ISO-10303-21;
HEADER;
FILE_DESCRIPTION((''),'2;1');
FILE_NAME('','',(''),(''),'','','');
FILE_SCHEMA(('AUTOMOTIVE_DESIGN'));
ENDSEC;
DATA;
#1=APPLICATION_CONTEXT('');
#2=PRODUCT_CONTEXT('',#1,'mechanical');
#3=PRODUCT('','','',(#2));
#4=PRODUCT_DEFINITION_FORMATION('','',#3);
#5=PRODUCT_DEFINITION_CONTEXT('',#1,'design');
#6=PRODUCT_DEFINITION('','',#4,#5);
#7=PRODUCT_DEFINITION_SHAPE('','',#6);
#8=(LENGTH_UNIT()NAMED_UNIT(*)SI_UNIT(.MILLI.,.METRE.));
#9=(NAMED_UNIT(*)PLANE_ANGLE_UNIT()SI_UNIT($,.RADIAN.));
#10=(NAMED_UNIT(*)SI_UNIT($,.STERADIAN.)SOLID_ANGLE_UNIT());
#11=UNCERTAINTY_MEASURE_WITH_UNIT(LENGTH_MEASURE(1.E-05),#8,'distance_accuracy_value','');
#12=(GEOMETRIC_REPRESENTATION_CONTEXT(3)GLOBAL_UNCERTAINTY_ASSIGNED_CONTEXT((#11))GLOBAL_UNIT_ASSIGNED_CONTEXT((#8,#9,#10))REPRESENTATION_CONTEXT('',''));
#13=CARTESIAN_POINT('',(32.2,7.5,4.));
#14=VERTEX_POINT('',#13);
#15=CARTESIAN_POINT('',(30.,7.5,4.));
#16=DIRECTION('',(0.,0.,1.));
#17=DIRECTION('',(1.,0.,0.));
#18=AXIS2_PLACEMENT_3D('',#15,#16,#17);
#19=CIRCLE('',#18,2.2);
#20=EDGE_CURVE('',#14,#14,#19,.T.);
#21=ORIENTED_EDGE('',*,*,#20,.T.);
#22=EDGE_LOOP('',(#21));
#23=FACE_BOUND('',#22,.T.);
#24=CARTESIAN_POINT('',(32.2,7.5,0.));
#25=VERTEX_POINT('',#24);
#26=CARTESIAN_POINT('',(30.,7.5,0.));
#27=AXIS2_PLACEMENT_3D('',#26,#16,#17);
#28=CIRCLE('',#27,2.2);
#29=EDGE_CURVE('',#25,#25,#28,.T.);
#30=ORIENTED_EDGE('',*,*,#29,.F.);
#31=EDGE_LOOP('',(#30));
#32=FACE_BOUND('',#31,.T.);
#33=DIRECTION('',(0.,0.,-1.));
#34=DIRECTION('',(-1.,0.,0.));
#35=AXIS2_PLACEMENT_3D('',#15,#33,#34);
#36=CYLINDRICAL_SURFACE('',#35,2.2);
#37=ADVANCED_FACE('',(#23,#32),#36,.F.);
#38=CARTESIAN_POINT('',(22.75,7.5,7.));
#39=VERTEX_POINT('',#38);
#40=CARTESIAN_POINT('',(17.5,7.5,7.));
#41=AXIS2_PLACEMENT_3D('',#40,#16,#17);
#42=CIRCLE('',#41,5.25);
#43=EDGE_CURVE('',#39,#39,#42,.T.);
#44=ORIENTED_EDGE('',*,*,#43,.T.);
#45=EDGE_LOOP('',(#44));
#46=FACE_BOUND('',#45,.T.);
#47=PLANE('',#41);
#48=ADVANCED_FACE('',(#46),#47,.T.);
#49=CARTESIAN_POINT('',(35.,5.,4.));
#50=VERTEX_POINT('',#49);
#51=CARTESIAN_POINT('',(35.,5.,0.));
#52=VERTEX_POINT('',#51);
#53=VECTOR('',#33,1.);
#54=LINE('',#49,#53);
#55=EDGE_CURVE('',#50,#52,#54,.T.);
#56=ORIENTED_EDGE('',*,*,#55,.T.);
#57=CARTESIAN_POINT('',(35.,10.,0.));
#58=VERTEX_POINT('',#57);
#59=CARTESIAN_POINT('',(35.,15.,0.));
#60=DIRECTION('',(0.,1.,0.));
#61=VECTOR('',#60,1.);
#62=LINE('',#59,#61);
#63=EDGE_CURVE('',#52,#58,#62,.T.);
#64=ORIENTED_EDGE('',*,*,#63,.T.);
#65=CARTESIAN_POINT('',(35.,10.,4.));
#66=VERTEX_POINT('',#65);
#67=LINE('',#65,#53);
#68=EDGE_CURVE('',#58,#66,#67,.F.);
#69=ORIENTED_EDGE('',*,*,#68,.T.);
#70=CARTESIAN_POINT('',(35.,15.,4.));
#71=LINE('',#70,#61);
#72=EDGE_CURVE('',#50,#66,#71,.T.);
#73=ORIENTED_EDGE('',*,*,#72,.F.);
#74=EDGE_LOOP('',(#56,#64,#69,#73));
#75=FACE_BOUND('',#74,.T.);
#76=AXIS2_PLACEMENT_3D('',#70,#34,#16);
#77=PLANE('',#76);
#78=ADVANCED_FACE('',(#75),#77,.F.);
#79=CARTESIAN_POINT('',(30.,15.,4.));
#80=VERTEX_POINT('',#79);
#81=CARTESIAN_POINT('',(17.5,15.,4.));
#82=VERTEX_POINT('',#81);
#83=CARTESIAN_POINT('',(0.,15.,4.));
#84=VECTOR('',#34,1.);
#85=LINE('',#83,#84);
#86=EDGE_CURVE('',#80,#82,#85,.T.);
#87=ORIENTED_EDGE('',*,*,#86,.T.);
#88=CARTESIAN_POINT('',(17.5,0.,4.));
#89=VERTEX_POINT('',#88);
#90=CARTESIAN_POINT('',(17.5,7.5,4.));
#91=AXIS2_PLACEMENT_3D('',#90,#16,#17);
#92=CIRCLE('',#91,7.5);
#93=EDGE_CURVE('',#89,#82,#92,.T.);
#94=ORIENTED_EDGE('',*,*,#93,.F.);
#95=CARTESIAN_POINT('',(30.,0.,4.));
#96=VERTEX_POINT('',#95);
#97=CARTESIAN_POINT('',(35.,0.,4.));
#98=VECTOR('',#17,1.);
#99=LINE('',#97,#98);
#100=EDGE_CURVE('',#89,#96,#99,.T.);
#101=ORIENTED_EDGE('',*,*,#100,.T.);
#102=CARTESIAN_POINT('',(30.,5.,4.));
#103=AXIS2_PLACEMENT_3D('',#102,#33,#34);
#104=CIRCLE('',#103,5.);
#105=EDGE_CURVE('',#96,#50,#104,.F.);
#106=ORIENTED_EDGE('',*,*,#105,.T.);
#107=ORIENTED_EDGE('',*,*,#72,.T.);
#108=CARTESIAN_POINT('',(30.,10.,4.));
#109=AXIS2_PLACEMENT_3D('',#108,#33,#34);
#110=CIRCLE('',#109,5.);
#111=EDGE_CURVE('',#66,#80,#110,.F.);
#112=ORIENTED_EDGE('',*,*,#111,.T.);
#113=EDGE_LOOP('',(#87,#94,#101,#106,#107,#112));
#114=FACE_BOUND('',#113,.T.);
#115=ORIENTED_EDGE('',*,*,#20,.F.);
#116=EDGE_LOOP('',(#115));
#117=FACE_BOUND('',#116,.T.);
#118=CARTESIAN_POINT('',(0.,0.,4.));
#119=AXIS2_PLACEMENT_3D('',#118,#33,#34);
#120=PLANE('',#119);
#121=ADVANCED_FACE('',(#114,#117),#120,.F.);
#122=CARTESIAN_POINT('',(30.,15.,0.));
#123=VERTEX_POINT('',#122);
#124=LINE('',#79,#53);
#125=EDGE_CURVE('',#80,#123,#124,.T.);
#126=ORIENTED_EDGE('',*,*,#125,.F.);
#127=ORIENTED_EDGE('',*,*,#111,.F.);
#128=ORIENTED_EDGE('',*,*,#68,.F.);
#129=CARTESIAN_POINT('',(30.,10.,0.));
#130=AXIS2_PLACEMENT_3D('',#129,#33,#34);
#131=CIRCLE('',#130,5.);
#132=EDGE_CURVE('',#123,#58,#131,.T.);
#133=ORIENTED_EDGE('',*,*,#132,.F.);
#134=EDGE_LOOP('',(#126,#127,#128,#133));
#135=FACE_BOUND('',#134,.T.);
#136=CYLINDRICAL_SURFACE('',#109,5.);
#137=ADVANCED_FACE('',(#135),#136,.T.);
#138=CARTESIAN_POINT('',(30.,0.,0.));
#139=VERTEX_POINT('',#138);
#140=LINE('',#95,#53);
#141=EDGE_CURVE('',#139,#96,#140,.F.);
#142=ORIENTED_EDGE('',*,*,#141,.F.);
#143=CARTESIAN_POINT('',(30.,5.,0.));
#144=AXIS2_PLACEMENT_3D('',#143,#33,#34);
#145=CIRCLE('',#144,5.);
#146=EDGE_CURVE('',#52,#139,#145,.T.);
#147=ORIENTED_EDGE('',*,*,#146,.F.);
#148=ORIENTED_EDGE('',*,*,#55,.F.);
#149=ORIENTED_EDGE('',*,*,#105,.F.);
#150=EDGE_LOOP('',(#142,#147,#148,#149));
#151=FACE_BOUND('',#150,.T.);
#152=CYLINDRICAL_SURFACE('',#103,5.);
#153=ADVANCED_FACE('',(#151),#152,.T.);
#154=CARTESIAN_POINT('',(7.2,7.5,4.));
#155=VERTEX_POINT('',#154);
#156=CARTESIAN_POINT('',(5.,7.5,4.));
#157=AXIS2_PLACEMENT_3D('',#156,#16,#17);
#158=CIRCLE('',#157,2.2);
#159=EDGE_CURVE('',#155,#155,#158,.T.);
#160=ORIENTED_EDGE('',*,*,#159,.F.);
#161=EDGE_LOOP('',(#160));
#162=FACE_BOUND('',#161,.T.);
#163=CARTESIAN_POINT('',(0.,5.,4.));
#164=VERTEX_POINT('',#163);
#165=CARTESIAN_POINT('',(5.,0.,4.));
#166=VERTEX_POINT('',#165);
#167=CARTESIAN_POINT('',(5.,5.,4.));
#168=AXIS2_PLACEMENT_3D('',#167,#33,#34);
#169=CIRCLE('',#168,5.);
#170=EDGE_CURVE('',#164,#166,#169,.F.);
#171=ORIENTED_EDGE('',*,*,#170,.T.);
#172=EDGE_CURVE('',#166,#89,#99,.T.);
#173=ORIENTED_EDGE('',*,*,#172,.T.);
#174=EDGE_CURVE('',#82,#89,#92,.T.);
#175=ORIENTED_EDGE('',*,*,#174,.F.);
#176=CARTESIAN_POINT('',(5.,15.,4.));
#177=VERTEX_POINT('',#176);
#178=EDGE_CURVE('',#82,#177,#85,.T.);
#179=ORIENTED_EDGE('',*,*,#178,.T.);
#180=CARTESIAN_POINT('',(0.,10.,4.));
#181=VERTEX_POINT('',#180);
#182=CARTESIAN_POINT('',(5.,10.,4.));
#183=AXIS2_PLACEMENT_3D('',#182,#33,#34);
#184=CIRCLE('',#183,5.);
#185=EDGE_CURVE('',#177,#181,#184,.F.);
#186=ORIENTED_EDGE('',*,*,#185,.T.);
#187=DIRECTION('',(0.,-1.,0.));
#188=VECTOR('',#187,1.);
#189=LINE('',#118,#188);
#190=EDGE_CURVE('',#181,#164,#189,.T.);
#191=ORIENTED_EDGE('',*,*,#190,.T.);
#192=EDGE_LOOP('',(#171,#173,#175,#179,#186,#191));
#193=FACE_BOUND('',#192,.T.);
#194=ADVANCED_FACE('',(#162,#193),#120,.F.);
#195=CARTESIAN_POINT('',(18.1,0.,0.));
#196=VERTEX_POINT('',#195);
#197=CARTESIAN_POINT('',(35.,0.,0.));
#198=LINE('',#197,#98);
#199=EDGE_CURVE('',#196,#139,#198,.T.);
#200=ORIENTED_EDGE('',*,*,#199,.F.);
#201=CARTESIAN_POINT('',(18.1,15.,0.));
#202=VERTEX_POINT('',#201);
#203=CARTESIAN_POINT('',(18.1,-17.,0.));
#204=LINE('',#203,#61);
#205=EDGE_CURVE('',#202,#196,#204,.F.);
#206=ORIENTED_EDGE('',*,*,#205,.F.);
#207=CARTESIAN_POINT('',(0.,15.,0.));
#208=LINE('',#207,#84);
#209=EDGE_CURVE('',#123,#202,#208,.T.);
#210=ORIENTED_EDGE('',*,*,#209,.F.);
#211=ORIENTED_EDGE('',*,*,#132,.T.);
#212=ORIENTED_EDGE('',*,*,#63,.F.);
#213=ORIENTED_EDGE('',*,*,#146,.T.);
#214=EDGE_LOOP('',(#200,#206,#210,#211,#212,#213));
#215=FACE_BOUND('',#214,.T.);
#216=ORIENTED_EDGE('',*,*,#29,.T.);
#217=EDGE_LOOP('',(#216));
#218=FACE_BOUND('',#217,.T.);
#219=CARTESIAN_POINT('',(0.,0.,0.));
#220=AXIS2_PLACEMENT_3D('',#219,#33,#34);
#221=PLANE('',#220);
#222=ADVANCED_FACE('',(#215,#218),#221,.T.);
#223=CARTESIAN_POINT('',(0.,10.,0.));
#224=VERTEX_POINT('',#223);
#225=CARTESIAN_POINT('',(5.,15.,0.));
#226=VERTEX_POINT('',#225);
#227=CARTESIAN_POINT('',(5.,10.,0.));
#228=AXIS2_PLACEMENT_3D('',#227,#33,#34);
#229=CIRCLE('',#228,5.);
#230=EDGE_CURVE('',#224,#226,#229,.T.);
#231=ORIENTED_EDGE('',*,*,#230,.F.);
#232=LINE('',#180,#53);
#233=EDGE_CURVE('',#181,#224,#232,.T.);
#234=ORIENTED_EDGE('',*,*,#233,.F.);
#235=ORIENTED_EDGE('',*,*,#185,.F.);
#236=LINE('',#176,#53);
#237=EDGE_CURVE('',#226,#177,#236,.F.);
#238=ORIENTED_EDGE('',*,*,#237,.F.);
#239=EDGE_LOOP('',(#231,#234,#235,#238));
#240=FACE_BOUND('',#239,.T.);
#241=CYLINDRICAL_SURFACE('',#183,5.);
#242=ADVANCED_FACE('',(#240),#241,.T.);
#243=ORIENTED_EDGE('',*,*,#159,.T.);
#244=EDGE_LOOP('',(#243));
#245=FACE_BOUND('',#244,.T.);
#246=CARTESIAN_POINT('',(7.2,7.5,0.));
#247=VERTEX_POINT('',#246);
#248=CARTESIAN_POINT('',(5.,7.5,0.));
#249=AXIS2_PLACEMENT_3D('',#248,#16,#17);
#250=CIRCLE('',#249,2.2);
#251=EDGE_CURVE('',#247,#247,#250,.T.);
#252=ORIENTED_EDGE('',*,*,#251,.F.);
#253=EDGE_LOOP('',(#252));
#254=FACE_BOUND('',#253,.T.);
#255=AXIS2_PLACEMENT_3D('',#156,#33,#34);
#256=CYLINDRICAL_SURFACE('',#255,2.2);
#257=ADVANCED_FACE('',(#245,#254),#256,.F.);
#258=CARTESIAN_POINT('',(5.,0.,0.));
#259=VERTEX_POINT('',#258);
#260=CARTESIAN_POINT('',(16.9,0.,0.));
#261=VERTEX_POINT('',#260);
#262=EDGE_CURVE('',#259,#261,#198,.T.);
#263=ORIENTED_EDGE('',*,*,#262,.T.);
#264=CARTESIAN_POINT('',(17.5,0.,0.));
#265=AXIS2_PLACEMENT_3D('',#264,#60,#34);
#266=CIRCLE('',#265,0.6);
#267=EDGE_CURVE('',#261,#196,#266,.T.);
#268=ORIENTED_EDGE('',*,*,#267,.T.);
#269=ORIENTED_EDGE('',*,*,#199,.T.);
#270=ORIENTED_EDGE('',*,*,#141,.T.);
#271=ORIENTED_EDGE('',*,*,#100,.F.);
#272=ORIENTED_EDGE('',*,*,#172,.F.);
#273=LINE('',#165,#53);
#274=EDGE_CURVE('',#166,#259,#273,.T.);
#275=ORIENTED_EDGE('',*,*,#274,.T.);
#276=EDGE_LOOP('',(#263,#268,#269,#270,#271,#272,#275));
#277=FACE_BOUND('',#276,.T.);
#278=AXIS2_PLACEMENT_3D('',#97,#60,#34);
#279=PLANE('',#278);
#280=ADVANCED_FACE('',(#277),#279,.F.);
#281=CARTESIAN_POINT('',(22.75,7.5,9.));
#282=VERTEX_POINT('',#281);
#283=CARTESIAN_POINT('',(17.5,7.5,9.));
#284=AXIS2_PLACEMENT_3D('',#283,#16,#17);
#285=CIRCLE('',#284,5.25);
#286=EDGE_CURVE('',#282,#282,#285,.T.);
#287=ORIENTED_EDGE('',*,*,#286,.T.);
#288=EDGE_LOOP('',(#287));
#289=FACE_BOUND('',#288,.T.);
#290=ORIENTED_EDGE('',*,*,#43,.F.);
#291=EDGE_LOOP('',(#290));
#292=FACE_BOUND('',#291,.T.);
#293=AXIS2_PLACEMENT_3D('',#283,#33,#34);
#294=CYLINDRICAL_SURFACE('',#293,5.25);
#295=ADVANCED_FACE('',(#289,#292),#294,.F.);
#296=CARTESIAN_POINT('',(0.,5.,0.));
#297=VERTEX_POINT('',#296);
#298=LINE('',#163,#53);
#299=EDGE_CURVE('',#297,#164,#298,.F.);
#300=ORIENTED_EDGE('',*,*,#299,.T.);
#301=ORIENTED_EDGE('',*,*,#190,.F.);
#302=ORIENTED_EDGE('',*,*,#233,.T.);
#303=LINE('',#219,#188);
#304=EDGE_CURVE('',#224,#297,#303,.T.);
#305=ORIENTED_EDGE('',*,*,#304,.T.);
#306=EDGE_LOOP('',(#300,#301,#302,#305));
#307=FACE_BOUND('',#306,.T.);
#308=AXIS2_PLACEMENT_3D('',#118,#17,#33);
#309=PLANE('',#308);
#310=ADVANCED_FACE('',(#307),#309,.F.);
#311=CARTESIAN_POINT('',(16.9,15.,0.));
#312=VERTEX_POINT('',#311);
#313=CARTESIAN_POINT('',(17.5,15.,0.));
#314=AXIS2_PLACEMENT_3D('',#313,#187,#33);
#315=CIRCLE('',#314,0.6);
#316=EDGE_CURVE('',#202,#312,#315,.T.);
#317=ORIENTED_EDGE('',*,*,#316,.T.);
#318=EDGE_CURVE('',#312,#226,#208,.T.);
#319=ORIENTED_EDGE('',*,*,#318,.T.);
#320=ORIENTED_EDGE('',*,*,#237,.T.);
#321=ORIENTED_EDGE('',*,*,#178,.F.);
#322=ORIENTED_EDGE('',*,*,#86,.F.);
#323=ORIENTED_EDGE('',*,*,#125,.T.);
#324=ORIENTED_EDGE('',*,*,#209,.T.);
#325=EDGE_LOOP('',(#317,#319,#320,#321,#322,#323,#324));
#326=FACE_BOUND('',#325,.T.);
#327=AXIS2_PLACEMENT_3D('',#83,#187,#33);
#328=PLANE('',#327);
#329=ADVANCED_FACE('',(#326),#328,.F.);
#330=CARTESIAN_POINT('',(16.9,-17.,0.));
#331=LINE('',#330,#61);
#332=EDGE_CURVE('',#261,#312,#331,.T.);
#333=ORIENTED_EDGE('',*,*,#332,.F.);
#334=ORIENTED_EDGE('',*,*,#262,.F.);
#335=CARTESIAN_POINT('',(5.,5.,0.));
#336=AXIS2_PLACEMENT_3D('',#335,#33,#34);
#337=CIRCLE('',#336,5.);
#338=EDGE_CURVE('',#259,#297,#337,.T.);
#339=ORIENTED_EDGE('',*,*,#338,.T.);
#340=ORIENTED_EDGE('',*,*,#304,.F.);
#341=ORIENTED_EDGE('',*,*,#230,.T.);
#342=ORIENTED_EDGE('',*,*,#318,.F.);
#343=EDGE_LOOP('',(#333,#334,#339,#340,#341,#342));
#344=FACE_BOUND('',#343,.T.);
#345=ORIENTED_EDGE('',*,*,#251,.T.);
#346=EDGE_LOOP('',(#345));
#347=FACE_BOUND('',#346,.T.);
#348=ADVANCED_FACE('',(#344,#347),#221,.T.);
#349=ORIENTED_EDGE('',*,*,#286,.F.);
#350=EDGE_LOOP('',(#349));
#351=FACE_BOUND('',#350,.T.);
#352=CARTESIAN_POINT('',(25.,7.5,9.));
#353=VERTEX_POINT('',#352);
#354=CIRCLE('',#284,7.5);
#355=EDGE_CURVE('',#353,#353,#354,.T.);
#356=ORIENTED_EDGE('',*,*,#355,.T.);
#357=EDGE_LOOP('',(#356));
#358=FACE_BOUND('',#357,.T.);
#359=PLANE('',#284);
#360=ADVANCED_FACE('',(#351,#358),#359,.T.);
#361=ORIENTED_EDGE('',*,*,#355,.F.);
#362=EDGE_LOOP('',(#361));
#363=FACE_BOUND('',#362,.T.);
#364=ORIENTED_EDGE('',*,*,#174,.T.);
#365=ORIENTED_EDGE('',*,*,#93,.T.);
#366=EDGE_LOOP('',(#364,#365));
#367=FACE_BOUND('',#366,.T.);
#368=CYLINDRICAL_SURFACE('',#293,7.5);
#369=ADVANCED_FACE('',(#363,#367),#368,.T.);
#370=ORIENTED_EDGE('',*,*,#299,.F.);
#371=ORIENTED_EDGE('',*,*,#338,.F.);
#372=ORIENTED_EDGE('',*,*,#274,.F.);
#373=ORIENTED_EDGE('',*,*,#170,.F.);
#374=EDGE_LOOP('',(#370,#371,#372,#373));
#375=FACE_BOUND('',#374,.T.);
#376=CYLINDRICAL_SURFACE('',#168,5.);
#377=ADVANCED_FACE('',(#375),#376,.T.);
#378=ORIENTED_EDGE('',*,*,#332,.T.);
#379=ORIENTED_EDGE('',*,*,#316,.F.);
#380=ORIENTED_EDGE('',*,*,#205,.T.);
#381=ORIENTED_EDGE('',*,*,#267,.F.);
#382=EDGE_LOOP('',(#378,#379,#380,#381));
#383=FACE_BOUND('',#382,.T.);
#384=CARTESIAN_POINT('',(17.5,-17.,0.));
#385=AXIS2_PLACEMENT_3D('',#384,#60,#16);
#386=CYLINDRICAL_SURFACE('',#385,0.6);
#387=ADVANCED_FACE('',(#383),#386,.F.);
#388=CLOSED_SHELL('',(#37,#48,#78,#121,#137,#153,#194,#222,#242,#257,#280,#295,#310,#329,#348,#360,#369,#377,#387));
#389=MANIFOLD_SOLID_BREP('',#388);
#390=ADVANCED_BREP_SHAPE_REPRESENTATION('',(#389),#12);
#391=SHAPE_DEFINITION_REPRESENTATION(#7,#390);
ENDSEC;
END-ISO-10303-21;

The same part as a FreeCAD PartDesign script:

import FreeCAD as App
import Part
import Sketcher
Q = App.Units.Quantity


def edges_at(feature, points):
    """Names of the edges that pass closest to the given points."""
    edges = feature.Shape.Edges
    near = lambda p: min(range(len(edges)), key=lambda i: edges[i].distToShape(Part.Vertex(*p))[0])
    return sorted({f"Edge{near(p) + 1}" for p in points})


def add_polygon(sketch, points):
    """Adds a closed chain of lines whose ends are joined by coincident constraints."""
    first, n = sketch.GeometryCount, len(points)
    for a, b in zip(points, points[1:] + points[:1]):
        sketch.addGeometry(Part.LineSegment(App.Vector(*a, 0), App.Vector(*b, 0)), False)
    for i in range(n):
        sketch.addConstraint(Sketcher.Constraint("Coincident", first + i, 2, first + (i + 1) % n, 1))

doc = App.newDocument("Part")
params = doc.addObject("Spreadsheet::Sheet", "Params")
for row, (alias, value) in enumerate([
    ("sketch1_diameter", "4.4 mm"),
    ("sketch1_width", "35 mm"),
    ("sketch1_height", "15 mm"),
    ("pad1_length", "4 mm"),
    ("sketch2_diameter", "15 mm"),
    ("sketch2_diameter2", "10.5 mm"),
    ("pad2_length", "5 mm"),
    ("fillet_radius", "5 mm"),
    ("sketch3_diameter", "1.2 mm"),
    ("pocket1_length", "32 mm"),
    ("sketch4_diameter", "10.5 mm"),
    ("pad3_length", "3 mm"),
], start=1):
    params.set(f"A{row}", alias)
    params.set(f"B{row}", "=" + value)
    params.setAlias(f"B{row}", alias)

body = doc.addObject("PartDesign::Body", "Body")

# Sketch on XY plane
sketch1 = doc.addObject("Sketcher::SketchObject", "Sketch")
body.addObject(sketch1)
sketch1.AttachmentSupport = (doc.XY_Plane, [""])
sketch1.MapMode = "FlatFace"
add_polygon(sketch1, [(0, 15), (0, 0), (35, 0), (35, 15)])  # lines 0-3
sketch1.addGeometry(Part.Circle(App.Vector(5, 7.5, 0), App.Vector(0, 0, 1), 2.2), False)  # 4
sketch1.addGeometry(Part.Circle(App.Vector(30, 7.5, 0), App.Vector(0, 0, 1), 2.2), False)  # 5
sketch1.addConstraint(Sketcher.Constraint("Vertical", 0))
sketch1.addConstraint(Sketcher.Constraint("Horizontal", 1))
sketch1.addConstraint(Sketcher.Constraint("Vertical", 2))
sketch1.addConstraint(Sketcher.Constraint("Horizontal", 3))
sketch1.addConstraint(Sketcher.Constraint("Coincident", 0, 2, -1, 1))
sketch1.addConstraint(Sketcher.Constraint("Equal", 4, 5))
sketch1.addConstraint(Sketcher.Constraint("Horizontal", 4, 3, 5, 3))
sketch1.addConstraint(Sketcher.Constraint("Diameter", 4, Q("4.4 mm")))
sketch1.addConstraint(Sketcher.Constraint("DistanceX", 1, 1, 1, 2, Q("35 mm")))
sketch1.addConstraint(Sketcher.Constraint("DistanceY", 0, 2, 0, 1, Q("15 mm")))
sketch1.addConstraint(Sketcher.Constraint("DistanceX", -1, 1, 4, 3, Q("5 mm")))
sketch1.addConstraint(Sketcher.Constraint("DistanceX", -1, 1, 5, 3, Q("30 mm")))
sketch1.addConstraint(Sketcher.Constraint("DistanceY", -1, 1, 4, 3, Q("7.5 mm")))
sketch1.setExpression("Constraints[11]", "Params.sketch1_diameter")
sketch1.setExpression("Constraints[12]", "Params.sketch1_width")
sketch1.setExpression("Constraints[13]", "Params.sketch1_height")
pad1 = doc.addObject("PartDesign::Pad", "Pad")
body.addObject(pad1)
pad1.Profile = sketch1
pad1.setExpression("Length", "Params.pad1_length")

# Sketch on XY plane
sketch2 = doc.addObject("Sketcher::SketchObject", "Sketch001")
body.addObject(sketch2)
sketch2.AttachmentSupport = (doc.XY_Plane, [""])
sketch2.MapMode = "FlatFace"
sketch2.AttachmentOffset = App.Placement(App.Vector(0, 0, 4), App.Rotation())
sketch2.addGeometry(Part.Circle(App.Vector(17.5, 7.5, 0), App.Vector(0, 0, 1), 7.5), False)
sketch2.addGeometry(Part.Circle(App.Vector(17.5, 7.5, 0), App.Vector(0, 0, 1), 5.25), False)
sketch2.addConstraint(Sketcher.Constraint("Coincident", 1, 3, 0, 3))
sketch2.addConstraint(Sketcher.Constraint("Diameter", 0, Q("15 mm")))
sketch2.addConstraint(Sketcher.Constraint("Diameter", 1, Q("10.5 mm")))
sketch2.addConstraint(Sketcher.Constraint("DistanceX", -1, 1, 0, 3, Q("17.5 mm")))
sketch2.addConstraint(Sketcher.Constraint("DistanceY", -1, 1, 0, 3, Q("7.5 mm")))
sketch2.setExpression("Constraints[1]", "Params.sketch2_diameter")
sketch2.setExpression("Constraints[2]", "Params.sketch2_diameter2")
pad2 = doc.addObject("PartDesign::Pad", "Pad001")
body.addObject(pad2)
pad2.Profile = sketch2
pad2.setExpression("Length", "Params.pad2_length")
doc.recompute()

fillet = doc.addObject("PartDesign::Fillet", "Fillet")
body.addObject(fillet)
fillet.Base = (pad2, edges_at(pad2, [
    (0, 0, 2),
    (0, 15, 2),
    (35, 15, 2),
    (35, 0, 2),
]))
fillet.setExpression("Radius", "Params.fillet_radius")

# Sketch on XZ plane
sketch3 = doc.addObject("Sketcher::SketchObject", "Sketch002")
body.addObject(sketch3)
sketch3.AttachmentSupport = (doc.XZ_Plane, [""])
sketch3.MapMode = "FlatFace"
sketch3.AttachmentOffset = App.Placement(App.Vector(0, 0, -15), App.Rotation())
sketch3.addGeometry(Part.Circle(App.Vector(17.5, 0, 0), App.Vector(0, 0, 1), 0.6), False)
sketch3.addConstraint(Sketcher.Constraint("PointOnObject", 0, 3, -1))
sketch3.addConstraint(Sketcher.Constraint("Diameter", 0, Q("1.2 mm")))
sketch3.addConstraint(Sketcher.Constraint("DistanceX", -1, 1, 0, 3, Q("17.5 mm")))
sketch3.setExpression("Constraints[1]", "Params.sketch3_diameter")
pocket1 = doc.addObject("PartDesign::Pocket", "Pocket")
body.addObject(pocket1)
pocket1.Profile = sketch3
pocket1.setExpression("Length", "Params.pocket1_length")
pocket1.Reversed = True

# Sketch on XY plane
sketch4 = doc.addObject("Sketcher::SketchObject", "Sketch003")
body.addObject(sketch4)
sketch4.AttachmentSupport = (doc.XY_Plane, [""])
sketch4.MapMode = "FlatFace"
sketch4.AttachmentOffset = App.Placement(App.Vector(0, 0, 4), App.Rotation())
sketch4.addGeometry(Part.Circle(App.Vector(17.5, 7.5, 0), App.Vector(0, 0, 1), 5.25), False)
sketch4.addConstraint(Sketcher.Constraint("Diameter", 0, Q("10.5 mm")))
sketch4.addConstraint(Sketcher.Constraint("DistanceX", -1, 1, 0, 3, Q("17.5 mm")))
sketch4.addConstraint(Sketcher.Constraint("DistanceY", -1, 1, 0, 3, Q("7.5 mm")))
sketch4.setExpression("Constraints[0]", "Params.sketch4_diameter")
pad3 = doc.addObject("PartDesign::Pad", "Pad002")
body.addObject(pad3)
pad3.Profile = sketch4
pad3.setExpression("Length", "Params.pad3_length")

doc.recompute()
